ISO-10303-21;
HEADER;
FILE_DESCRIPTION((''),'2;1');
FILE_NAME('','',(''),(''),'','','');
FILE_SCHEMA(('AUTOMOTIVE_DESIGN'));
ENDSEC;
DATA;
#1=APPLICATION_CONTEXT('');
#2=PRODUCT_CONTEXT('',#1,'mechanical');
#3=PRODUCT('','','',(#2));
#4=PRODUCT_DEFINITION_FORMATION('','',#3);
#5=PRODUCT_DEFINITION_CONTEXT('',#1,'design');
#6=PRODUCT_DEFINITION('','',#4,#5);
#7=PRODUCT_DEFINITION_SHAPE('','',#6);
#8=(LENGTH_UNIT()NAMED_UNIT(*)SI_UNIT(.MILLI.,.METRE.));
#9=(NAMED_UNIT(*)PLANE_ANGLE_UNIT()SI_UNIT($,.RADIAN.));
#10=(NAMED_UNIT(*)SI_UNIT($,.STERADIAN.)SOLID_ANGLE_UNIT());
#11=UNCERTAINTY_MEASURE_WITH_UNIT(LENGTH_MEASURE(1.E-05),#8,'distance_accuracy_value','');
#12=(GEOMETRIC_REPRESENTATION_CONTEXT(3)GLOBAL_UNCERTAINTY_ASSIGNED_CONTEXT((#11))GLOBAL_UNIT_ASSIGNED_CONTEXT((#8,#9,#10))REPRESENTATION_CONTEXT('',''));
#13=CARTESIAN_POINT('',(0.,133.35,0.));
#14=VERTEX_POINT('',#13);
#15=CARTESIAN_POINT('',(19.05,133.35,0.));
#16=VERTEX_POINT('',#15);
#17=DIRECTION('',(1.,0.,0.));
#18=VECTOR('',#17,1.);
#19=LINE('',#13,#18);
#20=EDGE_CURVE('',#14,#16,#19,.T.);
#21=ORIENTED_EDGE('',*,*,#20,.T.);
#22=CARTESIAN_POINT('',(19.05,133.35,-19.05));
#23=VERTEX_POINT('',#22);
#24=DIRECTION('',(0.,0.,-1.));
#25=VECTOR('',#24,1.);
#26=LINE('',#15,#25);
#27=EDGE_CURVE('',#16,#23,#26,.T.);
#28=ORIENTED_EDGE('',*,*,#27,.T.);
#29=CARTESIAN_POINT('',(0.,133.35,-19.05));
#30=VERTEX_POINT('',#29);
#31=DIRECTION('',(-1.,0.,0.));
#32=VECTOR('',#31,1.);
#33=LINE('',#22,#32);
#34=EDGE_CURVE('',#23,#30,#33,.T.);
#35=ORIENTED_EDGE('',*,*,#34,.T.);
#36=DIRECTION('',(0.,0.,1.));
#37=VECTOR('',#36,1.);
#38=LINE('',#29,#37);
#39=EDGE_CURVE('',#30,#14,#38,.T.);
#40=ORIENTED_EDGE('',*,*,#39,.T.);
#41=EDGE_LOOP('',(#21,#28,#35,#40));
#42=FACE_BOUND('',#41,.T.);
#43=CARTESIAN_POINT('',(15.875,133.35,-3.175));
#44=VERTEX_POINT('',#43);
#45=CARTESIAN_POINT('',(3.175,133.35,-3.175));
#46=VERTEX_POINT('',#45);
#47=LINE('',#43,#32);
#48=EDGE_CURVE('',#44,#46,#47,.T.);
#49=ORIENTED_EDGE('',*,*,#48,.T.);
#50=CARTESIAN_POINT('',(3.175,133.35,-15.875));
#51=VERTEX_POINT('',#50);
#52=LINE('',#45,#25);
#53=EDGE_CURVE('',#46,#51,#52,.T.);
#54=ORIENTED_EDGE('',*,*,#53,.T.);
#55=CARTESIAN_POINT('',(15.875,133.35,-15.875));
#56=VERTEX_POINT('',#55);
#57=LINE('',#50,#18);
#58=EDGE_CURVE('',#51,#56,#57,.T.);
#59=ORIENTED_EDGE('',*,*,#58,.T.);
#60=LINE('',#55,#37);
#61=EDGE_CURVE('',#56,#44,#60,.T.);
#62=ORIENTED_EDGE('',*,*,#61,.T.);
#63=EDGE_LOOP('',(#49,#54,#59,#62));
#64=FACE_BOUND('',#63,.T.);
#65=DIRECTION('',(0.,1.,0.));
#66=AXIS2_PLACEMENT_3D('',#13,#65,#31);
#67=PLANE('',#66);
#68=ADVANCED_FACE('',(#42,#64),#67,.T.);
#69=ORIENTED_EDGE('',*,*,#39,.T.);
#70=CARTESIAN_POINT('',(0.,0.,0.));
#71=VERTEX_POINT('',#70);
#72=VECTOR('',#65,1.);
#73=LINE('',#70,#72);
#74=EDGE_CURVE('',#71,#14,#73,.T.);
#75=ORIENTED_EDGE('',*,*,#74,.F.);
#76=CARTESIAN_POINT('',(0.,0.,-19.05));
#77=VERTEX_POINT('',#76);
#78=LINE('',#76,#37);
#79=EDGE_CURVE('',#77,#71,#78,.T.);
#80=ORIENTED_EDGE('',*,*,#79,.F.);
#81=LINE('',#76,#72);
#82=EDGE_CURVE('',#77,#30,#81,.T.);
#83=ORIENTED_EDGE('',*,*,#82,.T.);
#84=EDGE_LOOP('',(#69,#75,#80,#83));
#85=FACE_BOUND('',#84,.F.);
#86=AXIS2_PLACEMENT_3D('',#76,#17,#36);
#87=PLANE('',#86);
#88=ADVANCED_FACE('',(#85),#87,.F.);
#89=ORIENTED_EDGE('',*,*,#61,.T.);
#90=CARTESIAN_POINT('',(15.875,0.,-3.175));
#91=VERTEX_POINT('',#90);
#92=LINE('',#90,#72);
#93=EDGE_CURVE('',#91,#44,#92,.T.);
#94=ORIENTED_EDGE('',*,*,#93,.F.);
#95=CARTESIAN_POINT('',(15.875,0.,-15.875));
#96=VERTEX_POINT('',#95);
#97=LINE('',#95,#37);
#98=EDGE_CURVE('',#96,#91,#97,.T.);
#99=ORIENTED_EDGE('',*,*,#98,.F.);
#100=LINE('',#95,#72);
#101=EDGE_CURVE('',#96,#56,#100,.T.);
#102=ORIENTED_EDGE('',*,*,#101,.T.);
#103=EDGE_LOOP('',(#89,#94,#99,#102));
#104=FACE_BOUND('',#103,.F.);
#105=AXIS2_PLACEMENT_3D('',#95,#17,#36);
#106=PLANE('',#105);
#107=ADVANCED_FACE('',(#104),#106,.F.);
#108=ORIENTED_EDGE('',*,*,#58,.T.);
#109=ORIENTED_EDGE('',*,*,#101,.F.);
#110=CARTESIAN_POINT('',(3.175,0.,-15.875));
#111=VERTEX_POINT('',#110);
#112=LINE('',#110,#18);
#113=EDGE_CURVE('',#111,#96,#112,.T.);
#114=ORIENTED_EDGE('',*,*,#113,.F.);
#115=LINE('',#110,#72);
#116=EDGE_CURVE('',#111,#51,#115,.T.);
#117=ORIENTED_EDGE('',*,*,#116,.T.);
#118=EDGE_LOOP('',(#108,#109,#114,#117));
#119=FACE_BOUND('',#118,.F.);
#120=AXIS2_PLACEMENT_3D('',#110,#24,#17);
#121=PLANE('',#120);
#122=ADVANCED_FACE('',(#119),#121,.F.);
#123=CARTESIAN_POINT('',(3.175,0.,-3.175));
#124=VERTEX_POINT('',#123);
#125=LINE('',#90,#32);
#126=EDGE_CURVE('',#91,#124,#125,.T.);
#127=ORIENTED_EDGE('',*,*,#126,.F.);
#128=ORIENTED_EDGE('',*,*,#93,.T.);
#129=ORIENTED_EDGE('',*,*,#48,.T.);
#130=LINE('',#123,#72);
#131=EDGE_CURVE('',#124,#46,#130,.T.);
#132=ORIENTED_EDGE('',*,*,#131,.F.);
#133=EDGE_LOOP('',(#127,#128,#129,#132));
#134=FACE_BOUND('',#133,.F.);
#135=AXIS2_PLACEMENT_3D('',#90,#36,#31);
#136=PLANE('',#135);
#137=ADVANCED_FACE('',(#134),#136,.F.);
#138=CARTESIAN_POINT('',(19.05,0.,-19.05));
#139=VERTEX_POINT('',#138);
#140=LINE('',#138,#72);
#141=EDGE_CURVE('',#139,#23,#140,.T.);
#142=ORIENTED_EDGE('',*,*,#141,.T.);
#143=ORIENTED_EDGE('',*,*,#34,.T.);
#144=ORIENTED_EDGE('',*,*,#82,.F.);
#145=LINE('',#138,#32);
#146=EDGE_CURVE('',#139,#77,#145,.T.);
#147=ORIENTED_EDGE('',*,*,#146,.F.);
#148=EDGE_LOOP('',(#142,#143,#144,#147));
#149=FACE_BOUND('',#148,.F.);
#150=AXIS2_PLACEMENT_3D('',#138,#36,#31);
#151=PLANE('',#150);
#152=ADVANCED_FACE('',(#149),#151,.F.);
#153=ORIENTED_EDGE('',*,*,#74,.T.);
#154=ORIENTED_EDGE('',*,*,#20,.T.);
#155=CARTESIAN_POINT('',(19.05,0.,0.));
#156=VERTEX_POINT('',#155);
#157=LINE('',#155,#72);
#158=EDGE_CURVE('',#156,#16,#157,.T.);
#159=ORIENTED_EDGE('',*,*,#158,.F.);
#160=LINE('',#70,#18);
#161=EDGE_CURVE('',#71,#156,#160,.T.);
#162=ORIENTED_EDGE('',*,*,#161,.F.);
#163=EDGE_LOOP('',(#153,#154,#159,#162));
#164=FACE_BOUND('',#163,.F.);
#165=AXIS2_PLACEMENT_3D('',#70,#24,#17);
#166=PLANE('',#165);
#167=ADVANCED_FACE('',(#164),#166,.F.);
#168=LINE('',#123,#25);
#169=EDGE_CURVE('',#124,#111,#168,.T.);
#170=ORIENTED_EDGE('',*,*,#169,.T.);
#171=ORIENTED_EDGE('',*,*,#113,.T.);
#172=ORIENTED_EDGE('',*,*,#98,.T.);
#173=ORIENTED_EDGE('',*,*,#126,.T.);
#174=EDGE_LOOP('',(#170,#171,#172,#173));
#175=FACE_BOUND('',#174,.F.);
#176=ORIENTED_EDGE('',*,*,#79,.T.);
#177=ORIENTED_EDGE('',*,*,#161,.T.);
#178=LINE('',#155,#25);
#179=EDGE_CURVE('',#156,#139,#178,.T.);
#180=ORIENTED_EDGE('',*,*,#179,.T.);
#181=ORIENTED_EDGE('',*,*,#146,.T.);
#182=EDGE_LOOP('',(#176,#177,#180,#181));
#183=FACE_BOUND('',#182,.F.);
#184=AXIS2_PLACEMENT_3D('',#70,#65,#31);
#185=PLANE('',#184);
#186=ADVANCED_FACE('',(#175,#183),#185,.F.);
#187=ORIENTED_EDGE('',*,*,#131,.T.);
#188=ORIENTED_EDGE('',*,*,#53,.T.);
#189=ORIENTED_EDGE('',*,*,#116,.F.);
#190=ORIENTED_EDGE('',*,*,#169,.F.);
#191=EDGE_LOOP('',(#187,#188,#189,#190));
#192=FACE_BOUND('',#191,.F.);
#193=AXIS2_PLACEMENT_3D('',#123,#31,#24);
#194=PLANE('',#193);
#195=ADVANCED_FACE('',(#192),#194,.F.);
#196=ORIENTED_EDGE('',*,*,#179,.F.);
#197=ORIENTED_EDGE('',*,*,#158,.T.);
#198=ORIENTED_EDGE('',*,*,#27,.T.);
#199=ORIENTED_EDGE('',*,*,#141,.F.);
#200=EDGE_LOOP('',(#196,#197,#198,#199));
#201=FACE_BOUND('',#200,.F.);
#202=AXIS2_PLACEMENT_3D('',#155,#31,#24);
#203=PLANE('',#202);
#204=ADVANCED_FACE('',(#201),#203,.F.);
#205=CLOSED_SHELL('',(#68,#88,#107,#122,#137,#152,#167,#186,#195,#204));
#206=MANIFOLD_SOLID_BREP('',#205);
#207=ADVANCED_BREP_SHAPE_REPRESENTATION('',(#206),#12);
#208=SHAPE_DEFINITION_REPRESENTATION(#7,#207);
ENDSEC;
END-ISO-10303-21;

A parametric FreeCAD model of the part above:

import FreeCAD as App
import Part
import Sketcher
Q = App.Units.Quantity


def add_polygon(sketch, points):
    """Adds a closed chain of lines whose ends are joined by coincident constraints."""
    first, n = sketch.GeometryCount, len(points)
    for a, b in zip(points, points[1:] + points[:1]):
        sketch.addGeometry(Part.LineSegment(App.Vector(*a, 0), App.Vector(*b, 0)), False)
    for i in range(n):
        sketch.addConstraint(Sketcher.Constraint("Coincident", first + i, 2, first + (i + 1) % n, 1))

doc = App.newDocument("Part")
params = doc.addObject("Spreadsheet::Sheet", "Params")
for row, (alias, value) in enumerate([
    ("sketch1_width", "0.75 in"),
    ("sketch1_width2", "0.5 in"),
    ("pad1_length", "5.25 in"),
], start=1):
    params.set(f"A{row}", alias)
    params.set(f"B{row}", "=" + value)
    params.setAlias(f"B{row}", alias)

body = doc.addObject("PartDesign::Body", "Body")

sketch1 = body.newObject("Sketcher::SketchObject", "Sketch")
sketch1.AttachmentSupport = (doc.getObject("XZ_Plane"), [""])
sketch1.MapMode = "FlatFace"
add_polygon(sketch1, [(0, -19.05), (0, 0), (19.05, 0), (19.05, -19.05)])
add_polygon(sketch1, [(3.175, -3.175), (3.175, -15.875), (15.875, -15.875), (15.875, -3.175)])
sketch1.addConstraint([
    Sketcher.Constraint("Vertical", 0),
    Sketcher.Constraint("Horizontal", 1),
    Sketcher.Constraint("Vertical", 2),
    Sketcher.Constraint("Horizontal", 3),
    Sketcher.Constraint("Vertical", 4),
    Sketcher.Constraint("Horizontal", 5),
    Sketcher.Constraint("Vertical", 6),
    Sketcher.Constraint("Horizontal", 7),
    Sketcher.Constraint("Coincident", 0, 2, -1, 1),
    Sketcher.Constraint("Equal", 3, 0),
    Sketcher.Constraint("Equal", 7, 4),
    Sketcher.Constraint("DistanceX", 1, 1, 1, 2, Q("0.75 in")),
    Sketcher.Constraint("DistanceX", 5, 1, 5, 2, Q("0.5 in")),
    Sketcher.Constraint("DistanceX", -1, 1, 4, 2, Q("0.125 in")),
    Sketcher.Constraint("DistanceY", 6, 2, -1, 1, Q("0.125 in")),
])
sketch1.setExpression("Constraints[19]", "Params.sketch1_width")
sketch1.setExpression("Constraints[20]", "Params.sketch1_width2")
pad1 = body.newObject("PartDesign::Pad", "Pad")
pad1.Profile = sketch1
pad1.setExpression("Length", "Params.pad1_length")
pad1.Reversed = True

doc.recompute()
